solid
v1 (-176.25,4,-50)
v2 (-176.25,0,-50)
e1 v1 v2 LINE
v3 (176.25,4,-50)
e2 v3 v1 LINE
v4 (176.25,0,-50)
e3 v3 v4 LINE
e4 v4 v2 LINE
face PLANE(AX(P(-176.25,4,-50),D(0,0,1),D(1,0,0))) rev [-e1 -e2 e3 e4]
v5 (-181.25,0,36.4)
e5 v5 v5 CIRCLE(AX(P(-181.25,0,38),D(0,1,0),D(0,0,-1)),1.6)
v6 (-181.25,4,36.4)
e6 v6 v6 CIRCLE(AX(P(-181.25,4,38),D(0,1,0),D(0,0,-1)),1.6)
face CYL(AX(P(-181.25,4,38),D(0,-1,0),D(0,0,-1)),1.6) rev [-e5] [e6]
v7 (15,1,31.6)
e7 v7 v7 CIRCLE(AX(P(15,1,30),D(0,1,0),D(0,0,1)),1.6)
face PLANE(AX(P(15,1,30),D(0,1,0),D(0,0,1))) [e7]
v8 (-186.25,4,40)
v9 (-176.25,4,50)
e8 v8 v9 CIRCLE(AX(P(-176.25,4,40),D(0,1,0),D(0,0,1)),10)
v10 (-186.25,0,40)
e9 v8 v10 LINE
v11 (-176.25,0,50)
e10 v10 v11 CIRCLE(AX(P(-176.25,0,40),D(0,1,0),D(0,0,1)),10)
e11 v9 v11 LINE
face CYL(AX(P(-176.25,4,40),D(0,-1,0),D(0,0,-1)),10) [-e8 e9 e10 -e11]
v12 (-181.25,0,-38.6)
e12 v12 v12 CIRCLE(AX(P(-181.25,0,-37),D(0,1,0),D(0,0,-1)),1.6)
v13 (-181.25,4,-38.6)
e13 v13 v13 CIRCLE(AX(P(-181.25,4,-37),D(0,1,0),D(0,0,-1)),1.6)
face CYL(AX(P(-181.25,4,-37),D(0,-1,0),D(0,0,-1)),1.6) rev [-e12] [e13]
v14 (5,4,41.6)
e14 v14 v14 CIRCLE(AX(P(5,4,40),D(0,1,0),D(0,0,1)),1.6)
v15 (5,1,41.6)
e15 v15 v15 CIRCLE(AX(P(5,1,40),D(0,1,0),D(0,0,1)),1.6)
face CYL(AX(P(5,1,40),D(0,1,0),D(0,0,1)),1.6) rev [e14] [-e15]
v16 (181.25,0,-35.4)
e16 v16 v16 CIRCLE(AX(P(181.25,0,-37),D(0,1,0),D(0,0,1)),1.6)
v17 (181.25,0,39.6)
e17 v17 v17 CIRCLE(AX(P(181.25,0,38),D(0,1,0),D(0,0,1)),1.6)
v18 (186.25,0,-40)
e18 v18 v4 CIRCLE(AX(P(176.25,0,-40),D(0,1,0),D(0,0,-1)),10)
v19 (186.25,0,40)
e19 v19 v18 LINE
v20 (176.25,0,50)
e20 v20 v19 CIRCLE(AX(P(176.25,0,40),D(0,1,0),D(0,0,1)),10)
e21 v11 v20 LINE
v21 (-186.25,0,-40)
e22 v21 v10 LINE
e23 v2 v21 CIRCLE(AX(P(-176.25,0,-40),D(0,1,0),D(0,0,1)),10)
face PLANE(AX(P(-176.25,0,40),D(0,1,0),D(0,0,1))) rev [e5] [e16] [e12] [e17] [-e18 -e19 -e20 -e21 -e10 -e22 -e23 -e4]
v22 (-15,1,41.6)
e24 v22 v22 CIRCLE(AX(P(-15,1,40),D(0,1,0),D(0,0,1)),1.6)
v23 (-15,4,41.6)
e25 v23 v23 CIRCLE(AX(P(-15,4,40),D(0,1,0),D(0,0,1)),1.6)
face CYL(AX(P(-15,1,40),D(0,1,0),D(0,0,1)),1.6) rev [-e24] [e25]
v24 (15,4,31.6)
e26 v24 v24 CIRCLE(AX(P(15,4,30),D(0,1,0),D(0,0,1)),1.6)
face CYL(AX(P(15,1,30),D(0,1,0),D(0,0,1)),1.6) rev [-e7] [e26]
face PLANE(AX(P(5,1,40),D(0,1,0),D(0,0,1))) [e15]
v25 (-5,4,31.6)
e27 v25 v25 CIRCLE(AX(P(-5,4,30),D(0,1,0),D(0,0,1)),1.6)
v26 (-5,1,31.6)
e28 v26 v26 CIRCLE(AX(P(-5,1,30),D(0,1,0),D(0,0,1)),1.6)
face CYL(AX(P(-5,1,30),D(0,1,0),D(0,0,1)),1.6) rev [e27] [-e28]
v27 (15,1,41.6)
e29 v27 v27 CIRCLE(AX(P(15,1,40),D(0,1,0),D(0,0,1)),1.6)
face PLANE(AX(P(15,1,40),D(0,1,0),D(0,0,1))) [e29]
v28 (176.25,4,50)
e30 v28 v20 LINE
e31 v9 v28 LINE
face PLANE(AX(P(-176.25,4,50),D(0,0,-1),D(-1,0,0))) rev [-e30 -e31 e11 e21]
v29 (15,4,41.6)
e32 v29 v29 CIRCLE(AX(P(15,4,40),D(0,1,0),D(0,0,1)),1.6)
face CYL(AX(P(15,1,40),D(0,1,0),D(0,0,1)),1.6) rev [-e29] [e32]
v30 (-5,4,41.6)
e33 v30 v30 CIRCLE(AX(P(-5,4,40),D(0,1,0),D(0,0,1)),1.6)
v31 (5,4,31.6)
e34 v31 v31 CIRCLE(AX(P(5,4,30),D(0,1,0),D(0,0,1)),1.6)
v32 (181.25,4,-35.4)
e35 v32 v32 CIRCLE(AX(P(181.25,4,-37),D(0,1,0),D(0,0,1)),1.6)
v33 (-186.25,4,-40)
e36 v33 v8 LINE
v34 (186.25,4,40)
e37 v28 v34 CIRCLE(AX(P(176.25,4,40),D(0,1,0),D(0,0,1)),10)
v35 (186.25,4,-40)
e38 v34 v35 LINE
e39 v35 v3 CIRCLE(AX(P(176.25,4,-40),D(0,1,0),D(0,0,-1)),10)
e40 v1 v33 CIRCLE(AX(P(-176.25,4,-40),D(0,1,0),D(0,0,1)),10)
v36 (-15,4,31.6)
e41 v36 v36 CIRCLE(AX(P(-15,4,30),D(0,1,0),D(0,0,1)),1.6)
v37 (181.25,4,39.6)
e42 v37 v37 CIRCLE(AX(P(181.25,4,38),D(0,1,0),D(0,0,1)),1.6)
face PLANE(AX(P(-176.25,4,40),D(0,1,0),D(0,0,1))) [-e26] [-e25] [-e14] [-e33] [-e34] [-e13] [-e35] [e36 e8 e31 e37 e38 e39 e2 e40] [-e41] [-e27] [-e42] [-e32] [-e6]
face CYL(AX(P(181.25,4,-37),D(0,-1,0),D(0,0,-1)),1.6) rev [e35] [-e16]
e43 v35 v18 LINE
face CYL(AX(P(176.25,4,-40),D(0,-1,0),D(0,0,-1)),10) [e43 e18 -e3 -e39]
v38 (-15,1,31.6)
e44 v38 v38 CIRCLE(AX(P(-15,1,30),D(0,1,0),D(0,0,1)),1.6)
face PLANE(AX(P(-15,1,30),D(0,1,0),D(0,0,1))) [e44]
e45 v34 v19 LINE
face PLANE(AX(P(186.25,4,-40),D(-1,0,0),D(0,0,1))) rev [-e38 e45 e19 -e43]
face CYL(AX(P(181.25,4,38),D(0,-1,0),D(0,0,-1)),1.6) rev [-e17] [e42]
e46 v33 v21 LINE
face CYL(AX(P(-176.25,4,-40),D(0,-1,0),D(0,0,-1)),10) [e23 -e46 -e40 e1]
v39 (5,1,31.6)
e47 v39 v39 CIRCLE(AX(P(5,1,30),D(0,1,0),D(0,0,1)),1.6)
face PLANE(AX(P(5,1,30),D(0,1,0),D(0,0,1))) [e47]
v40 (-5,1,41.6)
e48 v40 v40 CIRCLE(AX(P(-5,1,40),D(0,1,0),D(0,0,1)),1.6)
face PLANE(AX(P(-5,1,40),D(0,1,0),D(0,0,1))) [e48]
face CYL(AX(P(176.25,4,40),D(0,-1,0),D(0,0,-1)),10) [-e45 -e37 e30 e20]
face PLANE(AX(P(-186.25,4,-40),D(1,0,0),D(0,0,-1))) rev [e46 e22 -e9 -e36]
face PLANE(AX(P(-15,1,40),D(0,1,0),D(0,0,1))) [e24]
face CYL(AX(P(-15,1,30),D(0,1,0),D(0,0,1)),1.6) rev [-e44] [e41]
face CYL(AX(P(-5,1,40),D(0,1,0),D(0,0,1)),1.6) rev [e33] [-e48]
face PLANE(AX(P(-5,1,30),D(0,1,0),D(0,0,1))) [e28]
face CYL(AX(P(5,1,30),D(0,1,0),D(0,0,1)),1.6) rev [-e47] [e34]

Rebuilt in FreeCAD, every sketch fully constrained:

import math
import FreeCAD as App
import Part
import Sketcher
from FreeCAD import Vector

doc = App.newDocument("Part")
body = doc.addObject("PartDesign::Body", "Body")

# Sketch on XZ plane
sketch1 = body.newObject("Sketcher::SketchObject", "Sketch")
sketch1.AttachmentSupport = (doc.getObject("XZ_Plane"), [""])
sketch1.MapMode = "FlatFace"
sketch1.addGeometry(Part.LineSegment(Vector(176.25, -50, 0), Vector(-176.25, -50, 0)), False)
sketch1.addGeometry(Part.ArcOfCircle(Part.Circle(Vector(-176.25, -40, 0), Vector(0, 0, 1), 10), math.radians(180), math.radians(270)), False)
sketch1.addGeometry(Part.LineSegment(Vector(-186.25, -40, 0), Vector(-186.25, 40, 0)), False)
sketch1.addGeometry(Part.ArcOfCircle(Part.Circle(Vector(-176.25, 40, 0), Vector(0, 0, 1), 10), math.radians(90), math.radians(180)), False)
sketch1.addGeometry(Part.LineSegment(Vector(-176.25, 50, 0), Vector(176.25, 50, 0)), False)
sketch1.addGeometry(Part.ArcOfCircle(Part.Circle(Vector(176.25, 40, 0), Vector(0, 0, 1), 10), math.radians(0), math.radians(90)), False)
sketch1.addGeometry(Part.LineSegment(Vector(186.25, 40, 0), Vector(186.25, -40, 0)), False)
sketch1.addGeometry(Part.ArcOfCircle(Part.Circle(Vector(176.25, -40, 0), Vector(0, 0, 1), 10), math.radians(-90), math.radians(0)), False)
sketch1.addGeometry(Part.Circle(Vector(181.25, 38, 0), Vector(0, 0, 1), 1.6), False)
sketch1.addGeometry(Part.Circle(Vector(-181.25, 38, 0), Vector(0, 0, 1), 1.6), False)
sketch1.addGeometry(Part.Circle(Vector(181.25, -37, 0), Vector(0, 0, 1), 1.6), False)
sketch1.addGeometry(Part.Circle(Vector(-181.25, -37, 0), Vector(0, 0, 1), 1.6), False)
sketch1.addConstraint(Sketcher.Constraint("Tangent", 0, 2, 1, 2))
sketch1.addConstraint(Sketcher.Constraint("Tangent", 1, 1, 2, 1))
sketch1.addConstraint(Sketcher.Constraint("Tangent", 2, 2, 3, 2))
sketch1.addConstraint(Sketcher.Constraint("Tangent", 3, 1, 4, 1))
sketch1.addConstraint(Sketcher.Constraint("Tangent", 4, 2, 5, 2))
sketch1.addConstraint(Sketcher.Constraint("Tangent", 5, 1, 6, 1))
sketch1.addConstraint(Sketcher.Constraint("Tangent", 6, 2, 7, 2))
sketch1.addConstraint(Sketcher.Constraint("Tangent", 7, 1, 0, 1))
sketch1.addConstraint(Sketcher.Constraint("Horizontal", 0))
sketch1.addConstraint(Sketcher.Constraint("Vertical", 2))
sketch1.addConstraint(Sketcher.Constraint("Horizontal", 4))
sketch1.addConstraint(Sketcher.Constraint("Vertical", 6))
sketch1.addConstraint(Sketcher.Constraint("Equal", 1, 3))
sketch1.addConstraint(Sketcher.Constraint("Equal", 3, 5))
sketch1.addConstraint(Sketcher.Constraint("Equal", 5, 7))
sketch1.addConstraint(Sketcher.Constraint("Equal", 8, 9))
sketch1.addConstraint(Sketcher.Constraint("Equal", 9, 10))
sketch1.addConstraint(Sketcher.Constraint("Equal", 10, 11))
sketch1.addConstraint(Sketcher.Constraint("Symmetric", 1, 3, 5, 3, -1, 1))
sketch1.addConstraint(Sketcher.Constraint("Symmetric", 8, 3, 9, 3, -2))
sketch1.addConstraint(Sketcher.Constraint("Symmetric", 10, 3, 11, 3, -2))
sketch1.addConstraint(Sketcher.Constraint("Vertical", 8, 3, 10, 3))
sketch1.addConstraint(Sketcher.Constraint("Radius", 1, 10.0))
sketch1.addConstraint(Sketcher.Constraint("Diameter", 8, 3.2))
sketch1.addConstraint(Sketcher.Constraint("DistanceY", 2, 1, 2, 2, 80.0))
sketch1.addConstraint(Sketcher.Constraint("DistanceX", 0, 2, 0, 1, 352.5))
sketch1.addConstraint(Sketcher.Constraint("DistanceY", -1, 1, 8, 3, 38.0))
sketch1.addConstraint(Sketcher.Constraint("DistanceY", 10, 3, -1, 1, 37.0))
sketch1.addConstraint(Sketcher.Constraint("DistanceX", 5, 3, 8, 3, 5.0))
pad1 = body.newObject("PartDesign::Pad", "Pad")
pad1.Profile = sketch1
pad1.Length = 4
pad1.Reversed = True

# Sketch on XZ plane
sketch2 = body.newObject("Sketcher::SketchObject", "Sketch001")
sketch2.AttachmentSupport = (doc.getObject("XZ_Plane"), [""])
sketch2.MapMode = "FlatFace"
sketch2.AttachmentOffset = App.Placement(Vector(0, 0, -4), App.Rotation())
sketch2.addGeometry(Part.Circle(Vector(-15, 30, 0), Vector(0, 0, 1), 1.6), False)
sketch2.addGeometry(Part.Circle(Vector(15, 30, 0), Vector(0, 0, 1), 1.6), False)
sketch2.addGeometry(Part.Circle(Vector(15, 40, 0), Vector(0, 0, 1), 1.6), False)
sketch2.addGeometry(Part.Circle(Vector(-15, 40, 0), Vector(0, 0, 1), 1.6), False)
sketch2.addGeometry(Part.Circle(Vector(-5, 30, 0), Vector(0, 0, 1), 1.6), False)
sketch2.addGeometry(Part.Circle(Vector(5, 30, 0), Vector(0, 0, 1), 1.6), False)
sketch2.addGeometry(Part.Circle(Vector(-5, 40, 0), Vector(0, 0, 1), 1.6), False)
sketch2.addGeometry(Part.Circle(Vector(5, 40, 0), Vector(0, 0, 1), 1.6), False)
sketch2.addConstraint(Sketcher.Constraint("Equal", 0, 1))
sketch2.addConstraint(Sketcher.Constraint("Equal", 1, 2))
sketch2.addConstraint(Sketcher.Constraint("Equal", 2, 3))
sketch2.addConstraint(Sketcher.Constraint("Equal", 3, 4))
sketch2.addConstraint(Sketcher.Constraint("Equal", 4, 5))
sketch2.addConstraint(Sketcher.Constraint("Equal", 5, 6))
sketch2.addConstraint(Sketcher.Constraint("Equal", 6, 7))
sketch2.addConstraint(Sketcher.Constraint("Symmetric", 0, 3, 1, 3, -2))
sketch2.addConstraint(Sketcher.Constraint("Symmetric", 2, 3, 3, 3, -2))
sketch2.addConstraint(Sketcher.Constraint("Symmetric", 4, 3, 5, 3, -2))
sketch2.addConstraint(Sketcher.Constraint("Symmetric", 6, 3, 7, 3, -2))
sketch2.addConstraint(Sketcher.Constraint("Horizontal", 1, 3, 4, 3))
sketch2.addConstraint(Sketcher.Constraint("Horizontal", 3, 3, 6, 3))
sketch2.addConstraint(Sketcher.Constraint("Vertical", 1, 3, 2, 3))
sketch2.addConstraint(Sketcher.Constraint("Vertical", 4, 3, 6, 3))
sketch2.addConstraint(Sketcher.Constraint("Diameter", 0, 3.2))
sketch2.addConstraint(Sketcher.Constraint("DistanceX", 0, 3, -1, 1, 15.0))
sketch2.addConstraint(Sketcher.Constraint("DistanceY", -1, 1, 0, 3, 30.0))
sketch2.addConstraint(Sketcher.Constraint("DistanceY", -1, 1, 2, 3, 40.0))
sketch2.addConstraint(Sketcher.Constraint("DistanceX", 4, 3, -1, 1, 5.0))
pocket1 = body.newObject("PartDesign::Pocket", "Pocket")
pocket1.Profile = sketch2
pocket1.Length = 3
pocket1.Reversed = True

doc.recompute()
